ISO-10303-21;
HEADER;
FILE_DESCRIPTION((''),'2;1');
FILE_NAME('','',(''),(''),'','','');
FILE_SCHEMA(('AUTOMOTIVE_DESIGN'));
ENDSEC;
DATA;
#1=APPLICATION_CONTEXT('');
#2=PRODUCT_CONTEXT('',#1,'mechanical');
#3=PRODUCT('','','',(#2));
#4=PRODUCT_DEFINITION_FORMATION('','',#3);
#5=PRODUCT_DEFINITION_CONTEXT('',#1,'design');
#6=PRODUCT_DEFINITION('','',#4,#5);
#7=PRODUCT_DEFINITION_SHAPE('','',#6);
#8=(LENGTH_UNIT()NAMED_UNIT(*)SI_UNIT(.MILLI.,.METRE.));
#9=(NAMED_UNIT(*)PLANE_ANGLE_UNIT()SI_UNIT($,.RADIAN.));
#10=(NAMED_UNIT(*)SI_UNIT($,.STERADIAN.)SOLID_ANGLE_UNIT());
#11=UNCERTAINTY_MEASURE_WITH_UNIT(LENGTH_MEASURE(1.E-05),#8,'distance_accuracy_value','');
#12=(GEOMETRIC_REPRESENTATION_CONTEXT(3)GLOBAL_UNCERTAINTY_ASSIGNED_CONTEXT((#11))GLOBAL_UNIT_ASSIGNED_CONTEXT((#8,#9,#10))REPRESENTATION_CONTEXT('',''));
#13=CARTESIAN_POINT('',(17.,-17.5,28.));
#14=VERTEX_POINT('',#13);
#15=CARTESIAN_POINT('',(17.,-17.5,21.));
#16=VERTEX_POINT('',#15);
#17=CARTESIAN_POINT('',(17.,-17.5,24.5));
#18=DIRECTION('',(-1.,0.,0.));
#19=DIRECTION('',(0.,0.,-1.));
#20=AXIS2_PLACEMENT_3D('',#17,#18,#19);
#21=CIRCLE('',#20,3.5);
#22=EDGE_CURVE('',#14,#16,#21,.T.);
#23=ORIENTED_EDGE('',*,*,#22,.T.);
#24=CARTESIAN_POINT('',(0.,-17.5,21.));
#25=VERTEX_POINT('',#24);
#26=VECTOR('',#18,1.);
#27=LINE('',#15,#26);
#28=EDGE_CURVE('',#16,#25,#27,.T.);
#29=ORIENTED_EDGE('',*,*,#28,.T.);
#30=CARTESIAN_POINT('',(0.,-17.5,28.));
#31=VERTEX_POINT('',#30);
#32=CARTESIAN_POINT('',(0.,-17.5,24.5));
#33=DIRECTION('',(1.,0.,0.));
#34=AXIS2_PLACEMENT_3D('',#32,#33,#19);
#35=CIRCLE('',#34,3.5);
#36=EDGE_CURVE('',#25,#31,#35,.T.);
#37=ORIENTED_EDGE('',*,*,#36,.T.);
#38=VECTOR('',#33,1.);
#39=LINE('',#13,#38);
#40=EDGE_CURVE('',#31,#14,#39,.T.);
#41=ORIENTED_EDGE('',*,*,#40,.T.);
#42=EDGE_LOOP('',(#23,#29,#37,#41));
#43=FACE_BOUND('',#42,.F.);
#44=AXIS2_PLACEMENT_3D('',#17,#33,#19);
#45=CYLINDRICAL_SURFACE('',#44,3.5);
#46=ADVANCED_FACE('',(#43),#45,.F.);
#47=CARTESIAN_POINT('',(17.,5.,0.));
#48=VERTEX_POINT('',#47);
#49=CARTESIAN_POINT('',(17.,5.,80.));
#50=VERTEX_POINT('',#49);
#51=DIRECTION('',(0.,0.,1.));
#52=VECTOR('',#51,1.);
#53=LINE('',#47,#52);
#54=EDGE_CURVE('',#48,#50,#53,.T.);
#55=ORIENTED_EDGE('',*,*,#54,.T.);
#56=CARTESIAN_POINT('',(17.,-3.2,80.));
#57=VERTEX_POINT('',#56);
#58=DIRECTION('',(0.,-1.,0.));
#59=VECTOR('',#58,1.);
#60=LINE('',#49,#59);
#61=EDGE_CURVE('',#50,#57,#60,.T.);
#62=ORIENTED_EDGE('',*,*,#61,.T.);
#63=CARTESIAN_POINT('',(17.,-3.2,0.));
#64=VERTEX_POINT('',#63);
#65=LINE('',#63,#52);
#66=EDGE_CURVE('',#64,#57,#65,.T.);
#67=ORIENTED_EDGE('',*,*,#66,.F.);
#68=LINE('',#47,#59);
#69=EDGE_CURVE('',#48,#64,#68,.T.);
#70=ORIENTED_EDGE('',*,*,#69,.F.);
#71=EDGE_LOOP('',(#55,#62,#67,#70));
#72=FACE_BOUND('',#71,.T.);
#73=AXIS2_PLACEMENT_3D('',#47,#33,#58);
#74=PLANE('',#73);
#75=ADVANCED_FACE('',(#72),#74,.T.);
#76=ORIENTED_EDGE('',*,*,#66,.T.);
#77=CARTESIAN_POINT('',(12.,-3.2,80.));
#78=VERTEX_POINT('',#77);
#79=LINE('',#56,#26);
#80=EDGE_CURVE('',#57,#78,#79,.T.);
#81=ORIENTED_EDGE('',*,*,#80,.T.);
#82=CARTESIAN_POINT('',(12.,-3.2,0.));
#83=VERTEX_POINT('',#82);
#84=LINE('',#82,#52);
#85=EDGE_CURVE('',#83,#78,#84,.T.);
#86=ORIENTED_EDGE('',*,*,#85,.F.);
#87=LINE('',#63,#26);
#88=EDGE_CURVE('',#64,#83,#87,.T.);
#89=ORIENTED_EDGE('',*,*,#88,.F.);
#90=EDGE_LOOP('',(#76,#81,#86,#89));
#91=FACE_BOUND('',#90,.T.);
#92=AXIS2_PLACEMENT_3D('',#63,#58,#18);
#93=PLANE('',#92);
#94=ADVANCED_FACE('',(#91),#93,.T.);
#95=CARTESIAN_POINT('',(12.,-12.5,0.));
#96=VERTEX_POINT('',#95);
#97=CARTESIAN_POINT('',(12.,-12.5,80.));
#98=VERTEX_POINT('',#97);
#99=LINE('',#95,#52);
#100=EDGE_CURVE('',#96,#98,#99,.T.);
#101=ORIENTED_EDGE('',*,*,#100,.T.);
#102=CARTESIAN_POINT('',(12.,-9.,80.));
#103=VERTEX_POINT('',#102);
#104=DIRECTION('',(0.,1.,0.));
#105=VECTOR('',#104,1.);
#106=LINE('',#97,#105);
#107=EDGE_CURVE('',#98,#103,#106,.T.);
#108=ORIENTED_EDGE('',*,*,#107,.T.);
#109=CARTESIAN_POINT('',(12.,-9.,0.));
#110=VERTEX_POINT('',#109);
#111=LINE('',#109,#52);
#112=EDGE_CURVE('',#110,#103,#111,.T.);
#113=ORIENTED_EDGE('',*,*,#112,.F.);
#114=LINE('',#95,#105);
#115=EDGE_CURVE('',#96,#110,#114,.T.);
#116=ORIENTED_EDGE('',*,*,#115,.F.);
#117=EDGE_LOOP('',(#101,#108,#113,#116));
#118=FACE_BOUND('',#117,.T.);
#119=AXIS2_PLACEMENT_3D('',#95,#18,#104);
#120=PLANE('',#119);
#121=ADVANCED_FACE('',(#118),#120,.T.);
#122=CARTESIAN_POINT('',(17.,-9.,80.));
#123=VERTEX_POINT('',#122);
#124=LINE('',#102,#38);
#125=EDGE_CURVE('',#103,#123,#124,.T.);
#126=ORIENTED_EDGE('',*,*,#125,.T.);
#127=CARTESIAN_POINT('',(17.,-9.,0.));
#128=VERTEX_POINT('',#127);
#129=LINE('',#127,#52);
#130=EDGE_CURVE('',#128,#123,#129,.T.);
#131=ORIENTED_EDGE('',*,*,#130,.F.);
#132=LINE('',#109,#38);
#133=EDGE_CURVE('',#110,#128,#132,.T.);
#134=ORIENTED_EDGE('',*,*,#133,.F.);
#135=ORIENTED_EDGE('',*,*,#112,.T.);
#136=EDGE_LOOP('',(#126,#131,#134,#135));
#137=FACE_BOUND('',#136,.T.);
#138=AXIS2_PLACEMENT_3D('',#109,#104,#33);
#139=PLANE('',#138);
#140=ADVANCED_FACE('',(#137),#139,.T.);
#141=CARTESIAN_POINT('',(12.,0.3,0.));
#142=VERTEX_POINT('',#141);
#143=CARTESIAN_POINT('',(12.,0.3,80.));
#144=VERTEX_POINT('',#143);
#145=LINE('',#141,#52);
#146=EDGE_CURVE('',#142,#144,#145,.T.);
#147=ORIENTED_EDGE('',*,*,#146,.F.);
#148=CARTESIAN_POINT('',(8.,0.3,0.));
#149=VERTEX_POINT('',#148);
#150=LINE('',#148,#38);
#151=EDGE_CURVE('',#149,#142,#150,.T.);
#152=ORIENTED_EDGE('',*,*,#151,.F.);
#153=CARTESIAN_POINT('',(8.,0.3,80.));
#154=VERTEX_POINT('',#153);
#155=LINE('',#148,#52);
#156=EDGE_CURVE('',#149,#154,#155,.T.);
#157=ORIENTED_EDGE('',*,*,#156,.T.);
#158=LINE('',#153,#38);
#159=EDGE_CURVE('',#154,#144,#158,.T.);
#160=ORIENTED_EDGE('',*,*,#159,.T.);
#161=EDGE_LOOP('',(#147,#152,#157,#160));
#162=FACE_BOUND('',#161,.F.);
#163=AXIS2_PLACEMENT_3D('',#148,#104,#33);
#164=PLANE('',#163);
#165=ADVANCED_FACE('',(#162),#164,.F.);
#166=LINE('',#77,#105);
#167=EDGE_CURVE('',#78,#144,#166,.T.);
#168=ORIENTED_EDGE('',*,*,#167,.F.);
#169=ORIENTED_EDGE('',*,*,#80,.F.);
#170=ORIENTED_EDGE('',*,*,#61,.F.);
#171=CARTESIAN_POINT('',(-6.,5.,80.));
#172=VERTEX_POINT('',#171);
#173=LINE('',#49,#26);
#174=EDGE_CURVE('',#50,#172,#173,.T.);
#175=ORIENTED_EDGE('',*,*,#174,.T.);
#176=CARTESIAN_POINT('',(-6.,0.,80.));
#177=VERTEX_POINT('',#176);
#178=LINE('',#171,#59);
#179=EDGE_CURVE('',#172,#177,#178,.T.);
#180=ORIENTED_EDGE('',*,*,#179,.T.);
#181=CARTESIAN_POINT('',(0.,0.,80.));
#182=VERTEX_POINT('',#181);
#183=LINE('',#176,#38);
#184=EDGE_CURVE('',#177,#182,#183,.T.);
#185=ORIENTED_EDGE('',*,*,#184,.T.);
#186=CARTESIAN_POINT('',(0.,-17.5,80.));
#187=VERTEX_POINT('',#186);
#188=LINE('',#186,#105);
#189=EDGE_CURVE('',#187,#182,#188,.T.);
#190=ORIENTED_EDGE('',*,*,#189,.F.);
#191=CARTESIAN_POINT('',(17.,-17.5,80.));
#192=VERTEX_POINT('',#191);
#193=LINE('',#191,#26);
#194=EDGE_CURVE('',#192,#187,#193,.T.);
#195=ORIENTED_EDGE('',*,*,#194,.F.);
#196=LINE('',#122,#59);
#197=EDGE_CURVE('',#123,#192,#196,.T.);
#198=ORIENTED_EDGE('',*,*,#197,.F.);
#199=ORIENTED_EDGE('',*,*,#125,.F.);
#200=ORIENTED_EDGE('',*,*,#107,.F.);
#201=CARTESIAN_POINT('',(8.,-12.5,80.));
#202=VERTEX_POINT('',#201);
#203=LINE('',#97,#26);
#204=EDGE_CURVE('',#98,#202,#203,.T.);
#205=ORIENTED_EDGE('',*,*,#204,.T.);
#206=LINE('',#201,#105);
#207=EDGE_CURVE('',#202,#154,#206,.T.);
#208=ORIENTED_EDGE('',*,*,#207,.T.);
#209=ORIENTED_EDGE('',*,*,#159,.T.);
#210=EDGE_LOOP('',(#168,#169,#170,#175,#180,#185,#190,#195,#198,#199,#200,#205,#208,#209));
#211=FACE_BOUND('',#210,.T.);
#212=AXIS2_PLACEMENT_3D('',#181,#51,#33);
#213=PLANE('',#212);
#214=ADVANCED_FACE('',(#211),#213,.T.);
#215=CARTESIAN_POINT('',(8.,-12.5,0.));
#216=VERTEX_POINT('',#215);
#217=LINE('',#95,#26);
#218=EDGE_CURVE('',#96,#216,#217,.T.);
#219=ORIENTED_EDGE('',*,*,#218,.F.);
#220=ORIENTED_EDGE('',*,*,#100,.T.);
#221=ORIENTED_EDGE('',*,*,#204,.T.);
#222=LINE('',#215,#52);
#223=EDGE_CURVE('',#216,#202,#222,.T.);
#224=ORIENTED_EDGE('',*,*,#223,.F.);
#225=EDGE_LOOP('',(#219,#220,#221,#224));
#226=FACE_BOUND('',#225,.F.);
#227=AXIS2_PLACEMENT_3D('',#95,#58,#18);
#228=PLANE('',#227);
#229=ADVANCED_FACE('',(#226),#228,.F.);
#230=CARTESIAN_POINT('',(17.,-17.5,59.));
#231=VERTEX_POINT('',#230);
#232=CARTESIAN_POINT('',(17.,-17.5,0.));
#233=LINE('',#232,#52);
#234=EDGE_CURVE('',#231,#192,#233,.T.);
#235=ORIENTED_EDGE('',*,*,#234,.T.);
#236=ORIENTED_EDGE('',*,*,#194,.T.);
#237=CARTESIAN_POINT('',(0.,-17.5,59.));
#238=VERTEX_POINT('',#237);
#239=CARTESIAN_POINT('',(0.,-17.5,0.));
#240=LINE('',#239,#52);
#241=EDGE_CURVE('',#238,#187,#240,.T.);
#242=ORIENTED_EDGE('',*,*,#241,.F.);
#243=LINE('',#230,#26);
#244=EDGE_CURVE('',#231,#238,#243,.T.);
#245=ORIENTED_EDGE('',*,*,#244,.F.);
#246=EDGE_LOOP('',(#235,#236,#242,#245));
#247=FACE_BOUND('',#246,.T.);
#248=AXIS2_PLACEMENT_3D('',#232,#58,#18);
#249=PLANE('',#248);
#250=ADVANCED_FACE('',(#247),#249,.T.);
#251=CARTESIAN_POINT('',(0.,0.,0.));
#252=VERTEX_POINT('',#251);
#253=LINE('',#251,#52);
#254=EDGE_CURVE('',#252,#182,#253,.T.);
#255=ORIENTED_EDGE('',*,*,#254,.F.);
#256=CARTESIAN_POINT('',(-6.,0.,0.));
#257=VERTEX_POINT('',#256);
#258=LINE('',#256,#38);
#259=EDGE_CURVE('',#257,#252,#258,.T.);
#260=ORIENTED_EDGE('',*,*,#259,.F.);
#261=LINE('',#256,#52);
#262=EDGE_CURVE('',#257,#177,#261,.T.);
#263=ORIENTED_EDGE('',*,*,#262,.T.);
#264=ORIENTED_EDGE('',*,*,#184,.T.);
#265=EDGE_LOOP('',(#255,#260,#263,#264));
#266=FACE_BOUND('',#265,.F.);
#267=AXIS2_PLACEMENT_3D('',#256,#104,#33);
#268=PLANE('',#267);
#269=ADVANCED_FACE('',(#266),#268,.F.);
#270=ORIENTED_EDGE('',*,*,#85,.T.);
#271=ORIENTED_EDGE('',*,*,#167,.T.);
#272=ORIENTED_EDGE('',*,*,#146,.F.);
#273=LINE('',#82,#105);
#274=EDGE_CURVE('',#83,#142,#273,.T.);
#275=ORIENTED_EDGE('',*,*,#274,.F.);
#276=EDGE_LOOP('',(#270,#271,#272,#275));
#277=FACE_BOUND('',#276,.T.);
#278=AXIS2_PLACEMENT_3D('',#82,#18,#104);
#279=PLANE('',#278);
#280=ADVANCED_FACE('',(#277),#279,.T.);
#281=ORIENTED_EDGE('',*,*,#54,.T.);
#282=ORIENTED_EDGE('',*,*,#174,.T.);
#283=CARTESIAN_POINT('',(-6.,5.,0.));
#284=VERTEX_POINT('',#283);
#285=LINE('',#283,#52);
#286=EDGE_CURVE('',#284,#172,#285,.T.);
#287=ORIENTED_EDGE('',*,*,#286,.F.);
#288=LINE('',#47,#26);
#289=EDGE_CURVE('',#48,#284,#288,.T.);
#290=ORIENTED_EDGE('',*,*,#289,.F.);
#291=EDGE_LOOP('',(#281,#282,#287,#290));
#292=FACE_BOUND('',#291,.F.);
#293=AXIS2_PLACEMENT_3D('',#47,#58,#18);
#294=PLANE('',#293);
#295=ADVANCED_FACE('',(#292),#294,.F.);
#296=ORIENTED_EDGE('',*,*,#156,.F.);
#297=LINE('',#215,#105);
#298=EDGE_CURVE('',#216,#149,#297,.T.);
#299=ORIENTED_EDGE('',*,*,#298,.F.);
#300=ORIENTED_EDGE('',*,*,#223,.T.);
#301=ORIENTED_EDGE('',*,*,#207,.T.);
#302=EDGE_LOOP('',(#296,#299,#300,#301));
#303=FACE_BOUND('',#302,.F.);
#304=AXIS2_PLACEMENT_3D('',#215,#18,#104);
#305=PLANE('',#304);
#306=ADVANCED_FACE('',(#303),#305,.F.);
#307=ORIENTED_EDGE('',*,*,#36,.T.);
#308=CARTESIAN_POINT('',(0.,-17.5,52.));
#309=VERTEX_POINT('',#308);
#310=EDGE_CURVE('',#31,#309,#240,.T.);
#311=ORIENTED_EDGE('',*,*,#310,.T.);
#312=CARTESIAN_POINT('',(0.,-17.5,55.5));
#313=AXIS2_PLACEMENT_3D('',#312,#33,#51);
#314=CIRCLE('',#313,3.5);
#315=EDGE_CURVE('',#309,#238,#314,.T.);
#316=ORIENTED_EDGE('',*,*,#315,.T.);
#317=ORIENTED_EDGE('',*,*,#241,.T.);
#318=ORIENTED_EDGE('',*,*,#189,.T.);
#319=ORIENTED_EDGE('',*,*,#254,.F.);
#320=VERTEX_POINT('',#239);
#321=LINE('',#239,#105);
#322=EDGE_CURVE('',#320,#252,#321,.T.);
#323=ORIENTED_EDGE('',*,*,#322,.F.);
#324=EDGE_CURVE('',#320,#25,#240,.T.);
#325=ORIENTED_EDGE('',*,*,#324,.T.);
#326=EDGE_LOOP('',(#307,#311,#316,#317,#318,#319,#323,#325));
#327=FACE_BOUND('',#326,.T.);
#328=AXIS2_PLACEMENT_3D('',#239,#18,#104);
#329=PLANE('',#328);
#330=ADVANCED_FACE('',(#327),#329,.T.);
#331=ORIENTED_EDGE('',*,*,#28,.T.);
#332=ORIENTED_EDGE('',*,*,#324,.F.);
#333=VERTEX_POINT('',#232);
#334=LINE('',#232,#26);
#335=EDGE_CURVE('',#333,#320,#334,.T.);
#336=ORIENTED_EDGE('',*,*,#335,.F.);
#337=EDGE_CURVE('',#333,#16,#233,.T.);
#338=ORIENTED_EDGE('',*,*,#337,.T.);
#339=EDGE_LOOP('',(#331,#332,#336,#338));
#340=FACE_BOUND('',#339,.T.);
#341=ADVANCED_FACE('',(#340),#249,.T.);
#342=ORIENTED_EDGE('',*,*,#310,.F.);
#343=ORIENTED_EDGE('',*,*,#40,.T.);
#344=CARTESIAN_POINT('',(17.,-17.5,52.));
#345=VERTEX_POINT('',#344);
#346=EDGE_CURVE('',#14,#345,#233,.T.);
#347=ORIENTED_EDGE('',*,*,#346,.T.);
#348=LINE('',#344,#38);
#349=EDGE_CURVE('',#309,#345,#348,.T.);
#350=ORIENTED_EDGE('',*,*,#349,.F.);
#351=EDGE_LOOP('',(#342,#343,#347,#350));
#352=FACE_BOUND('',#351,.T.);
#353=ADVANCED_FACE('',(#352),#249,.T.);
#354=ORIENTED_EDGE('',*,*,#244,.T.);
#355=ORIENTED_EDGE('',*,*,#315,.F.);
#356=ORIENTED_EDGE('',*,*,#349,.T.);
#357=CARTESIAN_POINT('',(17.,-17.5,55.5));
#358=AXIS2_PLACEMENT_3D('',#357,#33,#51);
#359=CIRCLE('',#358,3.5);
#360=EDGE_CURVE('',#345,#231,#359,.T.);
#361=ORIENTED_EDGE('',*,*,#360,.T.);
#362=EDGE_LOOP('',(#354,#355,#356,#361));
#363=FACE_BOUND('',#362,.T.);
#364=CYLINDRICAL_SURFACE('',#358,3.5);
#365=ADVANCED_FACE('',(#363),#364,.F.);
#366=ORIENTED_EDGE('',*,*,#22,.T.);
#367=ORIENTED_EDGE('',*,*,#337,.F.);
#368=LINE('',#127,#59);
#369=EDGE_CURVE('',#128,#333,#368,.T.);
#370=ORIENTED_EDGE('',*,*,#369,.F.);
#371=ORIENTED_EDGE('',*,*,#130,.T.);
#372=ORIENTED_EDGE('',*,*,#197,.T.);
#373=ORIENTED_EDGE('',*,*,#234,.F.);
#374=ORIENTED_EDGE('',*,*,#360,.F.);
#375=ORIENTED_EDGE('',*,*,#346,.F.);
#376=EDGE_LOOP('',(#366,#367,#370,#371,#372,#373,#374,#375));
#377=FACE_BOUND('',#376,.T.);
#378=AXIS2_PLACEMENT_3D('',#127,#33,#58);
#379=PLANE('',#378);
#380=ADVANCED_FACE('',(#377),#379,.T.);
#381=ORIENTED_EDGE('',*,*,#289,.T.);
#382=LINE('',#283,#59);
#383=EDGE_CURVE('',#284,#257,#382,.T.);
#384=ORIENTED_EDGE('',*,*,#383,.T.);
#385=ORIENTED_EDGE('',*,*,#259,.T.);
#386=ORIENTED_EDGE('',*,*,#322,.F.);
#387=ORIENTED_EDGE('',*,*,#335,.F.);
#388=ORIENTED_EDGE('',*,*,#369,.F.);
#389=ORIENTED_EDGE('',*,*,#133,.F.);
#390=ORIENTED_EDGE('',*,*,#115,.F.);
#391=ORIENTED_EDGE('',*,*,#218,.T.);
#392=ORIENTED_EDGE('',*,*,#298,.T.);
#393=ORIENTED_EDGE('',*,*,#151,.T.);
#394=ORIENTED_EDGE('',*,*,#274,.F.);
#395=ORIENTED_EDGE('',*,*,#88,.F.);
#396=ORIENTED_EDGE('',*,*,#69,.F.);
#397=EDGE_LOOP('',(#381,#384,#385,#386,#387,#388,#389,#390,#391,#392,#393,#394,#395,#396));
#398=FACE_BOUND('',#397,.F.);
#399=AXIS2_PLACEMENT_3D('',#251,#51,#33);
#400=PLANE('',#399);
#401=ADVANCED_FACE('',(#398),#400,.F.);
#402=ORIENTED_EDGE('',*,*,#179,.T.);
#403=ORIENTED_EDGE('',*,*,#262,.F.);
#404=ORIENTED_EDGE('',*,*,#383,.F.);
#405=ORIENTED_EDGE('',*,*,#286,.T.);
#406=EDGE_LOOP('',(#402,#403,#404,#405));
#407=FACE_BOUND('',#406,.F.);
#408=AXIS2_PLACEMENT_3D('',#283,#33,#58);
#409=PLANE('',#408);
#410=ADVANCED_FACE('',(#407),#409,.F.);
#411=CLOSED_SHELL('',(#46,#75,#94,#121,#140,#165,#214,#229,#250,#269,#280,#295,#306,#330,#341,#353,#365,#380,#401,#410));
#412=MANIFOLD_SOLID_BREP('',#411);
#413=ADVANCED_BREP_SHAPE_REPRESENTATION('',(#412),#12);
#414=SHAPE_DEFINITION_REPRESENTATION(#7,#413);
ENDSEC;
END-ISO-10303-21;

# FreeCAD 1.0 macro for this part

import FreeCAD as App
import Part
import Sketcher


def add_polygon(sketch, points):
    """Adds a closed chain of lines whose ends are joined by coincident constraints."""
    first, n = sketch.GeometryCount, len(points)
    for a, b in zip(points, points[1:] + points[:1]):
        sketch.addGeometry(Part.LineSegment(App.Vector(*a, 0), App.Vector(*b, 0)), False)
    for i in range(n):
        sketch.addConstraint(Sketcher.Constraint("Coincident", first + i, 2, first + (i + 1) % n, 1))

doc = App.newDocument("Part")
body = doc.addObject("PartDesign::Body", "Body")

# Sketch on XY plane
sketch1 = body.newObject("Sketcher::SketchObject", "Sketch")
sketch1.AttachmentSupport = (doc.getObject("XY_Plane"), [""])
sketch1.MapMode = "FlatFace"
add_polygon(sketch1, [(17, -3.2), (17, 5), (-6, 5), (-6, 0), (0, 0), (0, -17.5), (17, -17.5), (17, -9), (12, -9), (12, -12.5), (8, -12.5), (8, 0.3), (12, 0.3), (12, -3.2)])  # lines 0-13
sketch1.addConstraint([
    Sketcher.Constraint("Vertical", 0),
    Sketcher.Constraint("Horizontal", 1),
    Sketcher.Constraint("Vertical", 2),
    Sketcher.Constraint("Horizontal", 3),
    Sketcher.Constraint("Vertical", 4),
    Sketcher.Constraint("Horizontal", 5),
    Sketcher.Constraint("Vertical", 6),
    Sketcher.Constraint("Horizontal", 7),
    Sketcher.Constraint("Vertical", 8),
    Sketcher.Constraint("Horizontal", 9),
    Sketcher.Constraint("Vertical", 10),
    Sketcher.Constraint("Horizontal", 11),
    Sketcher.Constraint("Vertical", 12),
    Sketcher.Constraint("Horizontal", 13),
    Sketcher.Constraint("Coincident", 3, 2, -1, 1),
    Sketcher.Constraint("Vertical", 0, 2, 5, 2),
    Sketcher.Constraint("Vertical", 8, 2, 11, 2),
    Sketcher.Constraint("Equal", 13, 2),
    Sketcher.Constraint("Equal", 8, 12),
    Sketcher.Constraint("DistanceX", 3, 1, 3, 2, 6.0),
    Sketcher.Constraint("DistanceX", 5, 1, 5, 2, 17.0),
    Sketcher.Constraint("DistanceX", 7, 2, 7, 1, 5.0),
    Sketcher.Constraint("DistanceX", 9, 2, 9, 1, 4.0),
    Sketcher.Constraint("DistanceY", 8, 2, 8, 1, 3.5),
    Sketcher.Constraint("DistanceY", 5, 2, 8, 2, 5.0),
    Sketcher.Constraint("DistanceY", -1, 1, 10, 2, 0.3),
    Sketcher.Constraint("DistanceY", 7, 2, 12, 2, 5.8),
])
pad1 = body.newObject("PartDesign::Pad", "Pad")
pad1.Profile = sketch1
pad1.Length = 80

# Sketch on YZ plane
sketch2 = body.newObject("Sketcher::SketchObject", "Sketch001")
sketch2.AttachmentSupport = (doc.getObject("YZ_Plane"), [""])
sketch2.MapMode = "FlatFace"
sketch2.AttachmentOffset = App.Placement(App.Vector(0, 0, 17), App.Rotation())
sketch2.addGeometry(Part.Circle(App.Vector(-17.5, 24.5, 0), App.Vector(0, 0, 1), 3.5), False)
sketch2.addConstraint([
    Sketcher.Constraint("Diameter", 0, 7.0),
    Sketcher.Constraint("DistanceY", -1, 1, 0, 3, 24.5),
    Sketcher.Constraint("DistanceX", 0, 3, -1, 1, 17.5),
])
pocket1 = body.newObject("PartDesign::Pocket", "Pocket")
pocket1.Profile = sketch2
pocket1.Length = 20
doc.recompute()

datumplane = body.newObject("PartDesign::Plane", "DatumPlane")
datumplane.AttachmentSupport = (doc.getObject("XY_Plane"), [""])
datumplane.MapMode = "FlatFace"
datumplane.AttachmentOffset = App.Placement(App.Vector(0, 0, 40), App.Rotation())
mirrored = body.newObject("PartDesign::Mirrored", "Mirrored")
mirrored.Originals = [pocket1]
mirrored.MirrorPlane = (datumplane, [""])
body.Tip = mirrored

doc.recompute()
